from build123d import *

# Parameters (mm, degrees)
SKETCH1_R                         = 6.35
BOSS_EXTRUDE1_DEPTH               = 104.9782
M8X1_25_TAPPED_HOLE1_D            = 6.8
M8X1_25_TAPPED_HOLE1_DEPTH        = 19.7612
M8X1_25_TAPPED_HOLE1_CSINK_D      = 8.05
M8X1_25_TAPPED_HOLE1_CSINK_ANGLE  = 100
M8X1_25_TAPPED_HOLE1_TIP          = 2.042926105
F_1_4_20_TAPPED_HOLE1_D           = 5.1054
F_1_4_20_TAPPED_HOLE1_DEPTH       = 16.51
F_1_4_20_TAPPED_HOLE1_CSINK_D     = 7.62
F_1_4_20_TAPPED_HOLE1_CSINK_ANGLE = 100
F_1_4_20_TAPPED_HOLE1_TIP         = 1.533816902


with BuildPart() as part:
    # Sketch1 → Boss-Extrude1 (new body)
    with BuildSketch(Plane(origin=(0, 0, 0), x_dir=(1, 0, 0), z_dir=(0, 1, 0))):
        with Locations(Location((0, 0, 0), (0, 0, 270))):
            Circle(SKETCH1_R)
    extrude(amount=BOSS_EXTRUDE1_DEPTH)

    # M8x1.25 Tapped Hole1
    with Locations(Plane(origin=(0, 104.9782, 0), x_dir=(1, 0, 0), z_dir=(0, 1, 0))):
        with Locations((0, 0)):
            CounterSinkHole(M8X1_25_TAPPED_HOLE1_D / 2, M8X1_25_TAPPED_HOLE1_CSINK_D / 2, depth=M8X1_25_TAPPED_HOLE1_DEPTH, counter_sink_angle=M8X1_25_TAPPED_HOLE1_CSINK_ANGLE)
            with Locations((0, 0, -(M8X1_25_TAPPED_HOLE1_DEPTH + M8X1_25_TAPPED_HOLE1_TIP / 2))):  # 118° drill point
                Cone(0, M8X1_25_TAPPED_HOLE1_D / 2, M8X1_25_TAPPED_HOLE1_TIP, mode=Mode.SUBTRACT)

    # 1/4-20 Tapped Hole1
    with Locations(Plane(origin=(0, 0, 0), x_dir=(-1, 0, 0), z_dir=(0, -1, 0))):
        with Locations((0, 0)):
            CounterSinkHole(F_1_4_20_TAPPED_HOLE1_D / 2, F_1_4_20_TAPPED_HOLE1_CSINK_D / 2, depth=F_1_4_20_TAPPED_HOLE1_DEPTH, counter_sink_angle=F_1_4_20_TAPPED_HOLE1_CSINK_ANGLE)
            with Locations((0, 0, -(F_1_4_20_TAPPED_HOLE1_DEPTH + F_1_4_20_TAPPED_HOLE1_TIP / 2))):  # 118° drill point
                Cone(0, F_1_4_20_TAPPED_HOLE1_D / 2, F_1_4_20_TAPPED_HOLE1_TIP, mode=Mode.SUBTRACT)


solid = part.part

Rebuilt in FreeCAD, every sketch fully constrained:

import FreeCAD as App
import Part
import Sketcher

V = App.Vector
Q = App.Units.Quantity

doc = App.newDocument("Part")
body = doc.addObject("PartDesign::Body", "Body")

# Sketch on XZ plane
sketch1 = body.newObject("Sketcher::SketchObject", "Sketch")
sketch1.AttachmentSupport = (doc.getObject("XZ_Plane"), [""])
sketch1.MapMode = "FlatFace"
sketch1.addGeometry(Part.Circle(V(0, 0, 0), V(0, 0, 1), 6), False)
sketch1.addConstraint([
    Sketcher.Constraint("Coincident", 0, 3, -1, 1),
    Sketcher.Constraint("Diameter", 0, Q("0.5 in")),
])
pad1 = body.newObject("PartDesign::Pad", "Pad")
pad1.Profile = sketch1
pad1.Length = Q("4.133 in")
pad1.Reversed = True

# Sketch on XZ plane
sketch2 = body.newObject("Sketcher::SketchObject", "Sketch001")
sketch2.AttachmentSupport = (doc.getObject("XZ_Plane"), [""])
sketch2.MapMode = "FlatFace"
sketch2.AttachmentOffset = App.Placement(V(0, 0, -4.133 * 25.4), App.Rotation())
sketch2.addGeometry(Part.Circle(V(0, 0, 0), V(0, 0, 1), 3.4), False)
sketch2.addConstraint([
    Sketcher.Constraint("Coincident", 0, 3, -1, 1),
    Sketcher.Constraint("Diameter", 0, 6.8),
])
doc.recompute()
hole = body.newObject("PartDesign::Hole", "Hole")
hole.Profile = sketch2
hole.ThreadType = "None"
hole.Diameter = 6.8
hole.DepthType = "Dimension"
hole.Depth = Q("0.778 in")
hole.DrillPoint = "Angled"
hole.DrillPointAngle = 118
hole.HoleCutType = "Countersink"
hole.HoleCutDiameter = 8.05
hole.HoleCutCountersinkAngle = 100
hole.Reversed = True

# Sketch on XZ plane
sketch3 = body.newObject("Sketcher::SketchObject", "Sketch002")
sketch3.AttachmentSupport = (doc.getObject("XZ_Plane"), [""])
sketch3.MapMode = "FlatFace"
sketch3.addGeometry(Part.Circle(V(0, 0, 0), V(0, 0, 1), 2.6), False)
sketch3.addConstraint([
    Sketcher.Constraint("Coincident", 0, 3, -1, 1),
    Sketcher.Constraint("Diameter", 0, Q("0.201 in")),
])
doc.recompute()
hole2 = body.newObject("PartDesign::Hole", "Hole001")
hole2.Profile = sketch3
hole2.ThreadType = "None"
hole2.Diameter = Q("0.201 in")
hole2.DepthType = "Dimension"
hole2.Depth = Q("0.65 in")
hole2.DrillPoint = "Angled"
hole2.DrillPointAngle = 118
hole2.HoleCutType = "Countersink"
hole2.HoleCutDiameter = Q("0.3 in")
hole2.HoleCutCountersinkAngle = 100

doc.recompute()
